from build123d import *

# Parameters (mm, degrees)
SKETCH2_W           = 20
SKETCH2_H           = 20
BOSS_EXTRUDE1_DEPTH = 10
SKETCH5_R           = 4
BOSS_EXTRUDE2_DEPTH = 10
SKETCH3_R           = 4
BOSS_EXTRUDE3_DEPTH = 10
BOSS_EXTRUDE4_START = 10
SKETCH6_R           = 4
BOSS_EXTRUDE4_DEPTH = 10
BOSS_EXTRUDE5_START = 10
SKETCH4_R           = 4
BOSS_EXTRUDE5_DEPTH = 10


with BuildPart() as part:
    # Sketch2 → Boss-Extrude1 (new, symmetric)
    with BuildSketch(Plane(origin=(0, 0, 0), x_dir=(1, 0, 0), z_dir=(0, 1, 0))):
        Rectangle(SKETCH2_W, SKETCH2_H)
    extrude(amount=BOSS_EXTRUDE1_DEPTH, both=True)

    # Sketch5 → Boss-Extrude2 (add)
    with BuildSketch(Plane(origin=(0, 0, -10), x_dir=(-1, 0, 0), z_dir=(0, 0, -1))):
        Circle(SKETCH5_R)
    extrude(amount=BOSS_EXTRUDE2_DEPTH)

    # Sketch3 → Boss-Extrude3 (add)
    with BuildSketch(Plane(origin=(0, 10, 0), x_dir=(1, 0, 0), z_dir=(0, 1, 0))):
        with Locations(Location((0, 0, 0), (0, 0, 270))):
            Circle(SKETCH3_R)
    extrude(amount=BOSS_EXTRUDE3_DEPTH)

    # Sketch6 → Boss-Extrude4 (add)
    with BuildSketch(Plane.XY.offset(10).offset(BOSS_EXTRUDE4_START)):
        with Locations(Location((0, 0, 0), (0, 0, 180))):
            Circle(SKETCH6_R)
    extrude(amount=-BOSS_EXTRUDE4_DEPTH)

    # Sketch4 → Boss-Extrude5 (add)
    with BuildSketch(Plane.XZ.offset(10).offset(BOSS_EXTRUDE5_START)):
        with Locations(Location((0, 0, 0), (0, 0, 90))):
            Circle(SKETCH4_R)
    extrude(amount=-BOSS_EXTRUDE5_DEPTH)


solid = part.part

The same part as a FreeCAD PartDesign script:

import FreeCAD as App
import Part
import Sketcher

V = App.Vector
Q = App.Units.Quantity


def add_polygon(sketch, points):
    """Adds a closed chain of lines whose ends are joined by coincident constraints."""
    first, n = sketch.GeometryCount, len(points)
    for a, b in zip(points, points[1:] + points[:1]):
        sketch.addGeometry(Part.LineSegment(App.Vector(*a, 0), App.Vector(*b, 0)), False)
    for i in range(n):
        sketch.addConstraint(Sketcher.Constraint("Coincident", first + i, 2, first + (i + 1) % n, 1))

doc = App.newDocument("Part")
body = doc.addObject("PartDesign::Body", "Body")

# Sketch on XZ plane
sketch1 = body.newObject("Sketcher::SketchObject", "Sketch")
sketch1.AttachmentSupport = (doc.getObject("XZ_Plane"), [""])
sketch1.MapMode = "FlatFace"
add_polygon(sketch1, [(-10, -10), (-10, 10), (10, 10), (10, -10)])  # lines 0-3
sketch1.addConstraint(Sketcher.Constraint("Vertical", 0))
sketch1.addConstraint(Sketcher.Constraint("Horizontal", 1))
sketch1.addConstraint(Sketcher.Constraint("Vertical", 2))
sketch1.addConstraint(Sketcher.Constraint("Horizontal", 3))
sketch1.addConstraint(Sketcher.Constraint("Symmetric", 0, 2, 2, 2, -1, 1))
sketch1.addConstraint(Sketcher.Constraint("Equal", 3, 0))
sketch1.addConstraint(Sketcher.Constraint("DistanceX", 1, 1, 1, 2, Q("20 mm")))
pad1 = body.newObject("PartDesign::Pad", "Pad")
pad1.Profile = sketch1
pad1.Length = 20
pad1.Midplane = True

# Sketch on XY plane
sketch2 = body.newObject("Sketcher::SketchObject", "Sketch001")
sketch2.AttachmentSupport = (doc.getObject("XY_Plane"), [""])
sketch2.MapMode = "FlatFace"
sketch2.AttachmentOffset = App.Placement(V(0, 0, -10), App.Rotation())
sketch2.addGeometry(Part.Circle(V(0, 0, 0), V(0, 0, 1), 4), False)
sketch2.addConstraint(Sketcher.Constraint("Coincident", 0, 3, -1, 1))
sketch2.addConstraint(Sketcher.Constraint("Diameter", 0, Q("8 mm")))
pad2 = body.newObject("PartDesign::Pad", "Pad001")
pad2.Profile = sketch2
pad2.Length = 10
pad2.Reversed = True

# Sketch on XZ plane
sketch3 = body.newObject("Sketcher::SketchObject", "Sketch002")
sketch3.AttachmentSupport = (doc.getObject("XZ_Plane"), [""])
sketch3.MapMode = "FlatFace"
sketch3.AttachmentOffset = App.Placement(V(0, 0, -10), App.Rotation())
sketch3.addGeometry(Part.Circle(V(0, 0, 0), V(0, 0, 1), 4), False)
sketch3.addConstraint(Sketcher.Constraint("Coincident", 0, 3, -1, 1))
sketch3.addConstraint(Sketcher.Constraint("Diameter", 0, Q("8 mm")))
pad3 = body.newObject("PartDesign::Pad", "Pad002")
pad3.Profile = sketch3
pad3.Length = 10
pad3.Reversed = True

# Sketch on XY plane
sketch4 = body.newObject("Sketcher::SketchObject", "Sketch003")
sketch4.AttachmentSupport = (doc.getObject("XY_Plane"), [""])
sketch4.MapMode = "FlatFace"
sketch4.AttachmentOffset = App.Placement(V(0, 0, 20), App.Rotation())
sketch4.addGeometry(Part.Circle(V(0, 0, 0), V(0, 0, 1), 4), False)
sketch4.addConstraint(Sketcher.Constraint("Coincident", 0, 3, -1, 1))
sketch4.addConstraint(Sketcher.Constraint("Diameter", 0, Q("8 mm")))
pad4 = body.newObject("PartDesign::Pad", "Pad003")
pad4.Profile = sketch4
pad4.Length = 10
pad4.Reversed = True

# Sketch on XZ plane
sketch5 = body.newObject("Sketcher::SketchObject", "Sketch004")
sketch5.AttachmentSupport = (doc.getObject("XZ_Plane"), [""])
sketch5.MapMode = "FlatFace"
sketch5.AttachmentOffset = App.Placement(V(0, 0, 20), App.Rotation())
sketch5.addGeometry(Part.Circle(V(0, 0, 0), V(0, 0, 1), 4), False)
sketch5.addConstraint(Sketcher.Constraint("Coincident", 0, 3, -1, 1))
sketch5.addConstraint(Sketcher.Constraint("Diameter", 0, Q("8 mm")))
pad5 = body.newObject("PartDesign::Pad", "Pad004")
pad5.Profile = sketch5
pad5.Length = 10
pad5.Reversed = True

doc.recompute()
